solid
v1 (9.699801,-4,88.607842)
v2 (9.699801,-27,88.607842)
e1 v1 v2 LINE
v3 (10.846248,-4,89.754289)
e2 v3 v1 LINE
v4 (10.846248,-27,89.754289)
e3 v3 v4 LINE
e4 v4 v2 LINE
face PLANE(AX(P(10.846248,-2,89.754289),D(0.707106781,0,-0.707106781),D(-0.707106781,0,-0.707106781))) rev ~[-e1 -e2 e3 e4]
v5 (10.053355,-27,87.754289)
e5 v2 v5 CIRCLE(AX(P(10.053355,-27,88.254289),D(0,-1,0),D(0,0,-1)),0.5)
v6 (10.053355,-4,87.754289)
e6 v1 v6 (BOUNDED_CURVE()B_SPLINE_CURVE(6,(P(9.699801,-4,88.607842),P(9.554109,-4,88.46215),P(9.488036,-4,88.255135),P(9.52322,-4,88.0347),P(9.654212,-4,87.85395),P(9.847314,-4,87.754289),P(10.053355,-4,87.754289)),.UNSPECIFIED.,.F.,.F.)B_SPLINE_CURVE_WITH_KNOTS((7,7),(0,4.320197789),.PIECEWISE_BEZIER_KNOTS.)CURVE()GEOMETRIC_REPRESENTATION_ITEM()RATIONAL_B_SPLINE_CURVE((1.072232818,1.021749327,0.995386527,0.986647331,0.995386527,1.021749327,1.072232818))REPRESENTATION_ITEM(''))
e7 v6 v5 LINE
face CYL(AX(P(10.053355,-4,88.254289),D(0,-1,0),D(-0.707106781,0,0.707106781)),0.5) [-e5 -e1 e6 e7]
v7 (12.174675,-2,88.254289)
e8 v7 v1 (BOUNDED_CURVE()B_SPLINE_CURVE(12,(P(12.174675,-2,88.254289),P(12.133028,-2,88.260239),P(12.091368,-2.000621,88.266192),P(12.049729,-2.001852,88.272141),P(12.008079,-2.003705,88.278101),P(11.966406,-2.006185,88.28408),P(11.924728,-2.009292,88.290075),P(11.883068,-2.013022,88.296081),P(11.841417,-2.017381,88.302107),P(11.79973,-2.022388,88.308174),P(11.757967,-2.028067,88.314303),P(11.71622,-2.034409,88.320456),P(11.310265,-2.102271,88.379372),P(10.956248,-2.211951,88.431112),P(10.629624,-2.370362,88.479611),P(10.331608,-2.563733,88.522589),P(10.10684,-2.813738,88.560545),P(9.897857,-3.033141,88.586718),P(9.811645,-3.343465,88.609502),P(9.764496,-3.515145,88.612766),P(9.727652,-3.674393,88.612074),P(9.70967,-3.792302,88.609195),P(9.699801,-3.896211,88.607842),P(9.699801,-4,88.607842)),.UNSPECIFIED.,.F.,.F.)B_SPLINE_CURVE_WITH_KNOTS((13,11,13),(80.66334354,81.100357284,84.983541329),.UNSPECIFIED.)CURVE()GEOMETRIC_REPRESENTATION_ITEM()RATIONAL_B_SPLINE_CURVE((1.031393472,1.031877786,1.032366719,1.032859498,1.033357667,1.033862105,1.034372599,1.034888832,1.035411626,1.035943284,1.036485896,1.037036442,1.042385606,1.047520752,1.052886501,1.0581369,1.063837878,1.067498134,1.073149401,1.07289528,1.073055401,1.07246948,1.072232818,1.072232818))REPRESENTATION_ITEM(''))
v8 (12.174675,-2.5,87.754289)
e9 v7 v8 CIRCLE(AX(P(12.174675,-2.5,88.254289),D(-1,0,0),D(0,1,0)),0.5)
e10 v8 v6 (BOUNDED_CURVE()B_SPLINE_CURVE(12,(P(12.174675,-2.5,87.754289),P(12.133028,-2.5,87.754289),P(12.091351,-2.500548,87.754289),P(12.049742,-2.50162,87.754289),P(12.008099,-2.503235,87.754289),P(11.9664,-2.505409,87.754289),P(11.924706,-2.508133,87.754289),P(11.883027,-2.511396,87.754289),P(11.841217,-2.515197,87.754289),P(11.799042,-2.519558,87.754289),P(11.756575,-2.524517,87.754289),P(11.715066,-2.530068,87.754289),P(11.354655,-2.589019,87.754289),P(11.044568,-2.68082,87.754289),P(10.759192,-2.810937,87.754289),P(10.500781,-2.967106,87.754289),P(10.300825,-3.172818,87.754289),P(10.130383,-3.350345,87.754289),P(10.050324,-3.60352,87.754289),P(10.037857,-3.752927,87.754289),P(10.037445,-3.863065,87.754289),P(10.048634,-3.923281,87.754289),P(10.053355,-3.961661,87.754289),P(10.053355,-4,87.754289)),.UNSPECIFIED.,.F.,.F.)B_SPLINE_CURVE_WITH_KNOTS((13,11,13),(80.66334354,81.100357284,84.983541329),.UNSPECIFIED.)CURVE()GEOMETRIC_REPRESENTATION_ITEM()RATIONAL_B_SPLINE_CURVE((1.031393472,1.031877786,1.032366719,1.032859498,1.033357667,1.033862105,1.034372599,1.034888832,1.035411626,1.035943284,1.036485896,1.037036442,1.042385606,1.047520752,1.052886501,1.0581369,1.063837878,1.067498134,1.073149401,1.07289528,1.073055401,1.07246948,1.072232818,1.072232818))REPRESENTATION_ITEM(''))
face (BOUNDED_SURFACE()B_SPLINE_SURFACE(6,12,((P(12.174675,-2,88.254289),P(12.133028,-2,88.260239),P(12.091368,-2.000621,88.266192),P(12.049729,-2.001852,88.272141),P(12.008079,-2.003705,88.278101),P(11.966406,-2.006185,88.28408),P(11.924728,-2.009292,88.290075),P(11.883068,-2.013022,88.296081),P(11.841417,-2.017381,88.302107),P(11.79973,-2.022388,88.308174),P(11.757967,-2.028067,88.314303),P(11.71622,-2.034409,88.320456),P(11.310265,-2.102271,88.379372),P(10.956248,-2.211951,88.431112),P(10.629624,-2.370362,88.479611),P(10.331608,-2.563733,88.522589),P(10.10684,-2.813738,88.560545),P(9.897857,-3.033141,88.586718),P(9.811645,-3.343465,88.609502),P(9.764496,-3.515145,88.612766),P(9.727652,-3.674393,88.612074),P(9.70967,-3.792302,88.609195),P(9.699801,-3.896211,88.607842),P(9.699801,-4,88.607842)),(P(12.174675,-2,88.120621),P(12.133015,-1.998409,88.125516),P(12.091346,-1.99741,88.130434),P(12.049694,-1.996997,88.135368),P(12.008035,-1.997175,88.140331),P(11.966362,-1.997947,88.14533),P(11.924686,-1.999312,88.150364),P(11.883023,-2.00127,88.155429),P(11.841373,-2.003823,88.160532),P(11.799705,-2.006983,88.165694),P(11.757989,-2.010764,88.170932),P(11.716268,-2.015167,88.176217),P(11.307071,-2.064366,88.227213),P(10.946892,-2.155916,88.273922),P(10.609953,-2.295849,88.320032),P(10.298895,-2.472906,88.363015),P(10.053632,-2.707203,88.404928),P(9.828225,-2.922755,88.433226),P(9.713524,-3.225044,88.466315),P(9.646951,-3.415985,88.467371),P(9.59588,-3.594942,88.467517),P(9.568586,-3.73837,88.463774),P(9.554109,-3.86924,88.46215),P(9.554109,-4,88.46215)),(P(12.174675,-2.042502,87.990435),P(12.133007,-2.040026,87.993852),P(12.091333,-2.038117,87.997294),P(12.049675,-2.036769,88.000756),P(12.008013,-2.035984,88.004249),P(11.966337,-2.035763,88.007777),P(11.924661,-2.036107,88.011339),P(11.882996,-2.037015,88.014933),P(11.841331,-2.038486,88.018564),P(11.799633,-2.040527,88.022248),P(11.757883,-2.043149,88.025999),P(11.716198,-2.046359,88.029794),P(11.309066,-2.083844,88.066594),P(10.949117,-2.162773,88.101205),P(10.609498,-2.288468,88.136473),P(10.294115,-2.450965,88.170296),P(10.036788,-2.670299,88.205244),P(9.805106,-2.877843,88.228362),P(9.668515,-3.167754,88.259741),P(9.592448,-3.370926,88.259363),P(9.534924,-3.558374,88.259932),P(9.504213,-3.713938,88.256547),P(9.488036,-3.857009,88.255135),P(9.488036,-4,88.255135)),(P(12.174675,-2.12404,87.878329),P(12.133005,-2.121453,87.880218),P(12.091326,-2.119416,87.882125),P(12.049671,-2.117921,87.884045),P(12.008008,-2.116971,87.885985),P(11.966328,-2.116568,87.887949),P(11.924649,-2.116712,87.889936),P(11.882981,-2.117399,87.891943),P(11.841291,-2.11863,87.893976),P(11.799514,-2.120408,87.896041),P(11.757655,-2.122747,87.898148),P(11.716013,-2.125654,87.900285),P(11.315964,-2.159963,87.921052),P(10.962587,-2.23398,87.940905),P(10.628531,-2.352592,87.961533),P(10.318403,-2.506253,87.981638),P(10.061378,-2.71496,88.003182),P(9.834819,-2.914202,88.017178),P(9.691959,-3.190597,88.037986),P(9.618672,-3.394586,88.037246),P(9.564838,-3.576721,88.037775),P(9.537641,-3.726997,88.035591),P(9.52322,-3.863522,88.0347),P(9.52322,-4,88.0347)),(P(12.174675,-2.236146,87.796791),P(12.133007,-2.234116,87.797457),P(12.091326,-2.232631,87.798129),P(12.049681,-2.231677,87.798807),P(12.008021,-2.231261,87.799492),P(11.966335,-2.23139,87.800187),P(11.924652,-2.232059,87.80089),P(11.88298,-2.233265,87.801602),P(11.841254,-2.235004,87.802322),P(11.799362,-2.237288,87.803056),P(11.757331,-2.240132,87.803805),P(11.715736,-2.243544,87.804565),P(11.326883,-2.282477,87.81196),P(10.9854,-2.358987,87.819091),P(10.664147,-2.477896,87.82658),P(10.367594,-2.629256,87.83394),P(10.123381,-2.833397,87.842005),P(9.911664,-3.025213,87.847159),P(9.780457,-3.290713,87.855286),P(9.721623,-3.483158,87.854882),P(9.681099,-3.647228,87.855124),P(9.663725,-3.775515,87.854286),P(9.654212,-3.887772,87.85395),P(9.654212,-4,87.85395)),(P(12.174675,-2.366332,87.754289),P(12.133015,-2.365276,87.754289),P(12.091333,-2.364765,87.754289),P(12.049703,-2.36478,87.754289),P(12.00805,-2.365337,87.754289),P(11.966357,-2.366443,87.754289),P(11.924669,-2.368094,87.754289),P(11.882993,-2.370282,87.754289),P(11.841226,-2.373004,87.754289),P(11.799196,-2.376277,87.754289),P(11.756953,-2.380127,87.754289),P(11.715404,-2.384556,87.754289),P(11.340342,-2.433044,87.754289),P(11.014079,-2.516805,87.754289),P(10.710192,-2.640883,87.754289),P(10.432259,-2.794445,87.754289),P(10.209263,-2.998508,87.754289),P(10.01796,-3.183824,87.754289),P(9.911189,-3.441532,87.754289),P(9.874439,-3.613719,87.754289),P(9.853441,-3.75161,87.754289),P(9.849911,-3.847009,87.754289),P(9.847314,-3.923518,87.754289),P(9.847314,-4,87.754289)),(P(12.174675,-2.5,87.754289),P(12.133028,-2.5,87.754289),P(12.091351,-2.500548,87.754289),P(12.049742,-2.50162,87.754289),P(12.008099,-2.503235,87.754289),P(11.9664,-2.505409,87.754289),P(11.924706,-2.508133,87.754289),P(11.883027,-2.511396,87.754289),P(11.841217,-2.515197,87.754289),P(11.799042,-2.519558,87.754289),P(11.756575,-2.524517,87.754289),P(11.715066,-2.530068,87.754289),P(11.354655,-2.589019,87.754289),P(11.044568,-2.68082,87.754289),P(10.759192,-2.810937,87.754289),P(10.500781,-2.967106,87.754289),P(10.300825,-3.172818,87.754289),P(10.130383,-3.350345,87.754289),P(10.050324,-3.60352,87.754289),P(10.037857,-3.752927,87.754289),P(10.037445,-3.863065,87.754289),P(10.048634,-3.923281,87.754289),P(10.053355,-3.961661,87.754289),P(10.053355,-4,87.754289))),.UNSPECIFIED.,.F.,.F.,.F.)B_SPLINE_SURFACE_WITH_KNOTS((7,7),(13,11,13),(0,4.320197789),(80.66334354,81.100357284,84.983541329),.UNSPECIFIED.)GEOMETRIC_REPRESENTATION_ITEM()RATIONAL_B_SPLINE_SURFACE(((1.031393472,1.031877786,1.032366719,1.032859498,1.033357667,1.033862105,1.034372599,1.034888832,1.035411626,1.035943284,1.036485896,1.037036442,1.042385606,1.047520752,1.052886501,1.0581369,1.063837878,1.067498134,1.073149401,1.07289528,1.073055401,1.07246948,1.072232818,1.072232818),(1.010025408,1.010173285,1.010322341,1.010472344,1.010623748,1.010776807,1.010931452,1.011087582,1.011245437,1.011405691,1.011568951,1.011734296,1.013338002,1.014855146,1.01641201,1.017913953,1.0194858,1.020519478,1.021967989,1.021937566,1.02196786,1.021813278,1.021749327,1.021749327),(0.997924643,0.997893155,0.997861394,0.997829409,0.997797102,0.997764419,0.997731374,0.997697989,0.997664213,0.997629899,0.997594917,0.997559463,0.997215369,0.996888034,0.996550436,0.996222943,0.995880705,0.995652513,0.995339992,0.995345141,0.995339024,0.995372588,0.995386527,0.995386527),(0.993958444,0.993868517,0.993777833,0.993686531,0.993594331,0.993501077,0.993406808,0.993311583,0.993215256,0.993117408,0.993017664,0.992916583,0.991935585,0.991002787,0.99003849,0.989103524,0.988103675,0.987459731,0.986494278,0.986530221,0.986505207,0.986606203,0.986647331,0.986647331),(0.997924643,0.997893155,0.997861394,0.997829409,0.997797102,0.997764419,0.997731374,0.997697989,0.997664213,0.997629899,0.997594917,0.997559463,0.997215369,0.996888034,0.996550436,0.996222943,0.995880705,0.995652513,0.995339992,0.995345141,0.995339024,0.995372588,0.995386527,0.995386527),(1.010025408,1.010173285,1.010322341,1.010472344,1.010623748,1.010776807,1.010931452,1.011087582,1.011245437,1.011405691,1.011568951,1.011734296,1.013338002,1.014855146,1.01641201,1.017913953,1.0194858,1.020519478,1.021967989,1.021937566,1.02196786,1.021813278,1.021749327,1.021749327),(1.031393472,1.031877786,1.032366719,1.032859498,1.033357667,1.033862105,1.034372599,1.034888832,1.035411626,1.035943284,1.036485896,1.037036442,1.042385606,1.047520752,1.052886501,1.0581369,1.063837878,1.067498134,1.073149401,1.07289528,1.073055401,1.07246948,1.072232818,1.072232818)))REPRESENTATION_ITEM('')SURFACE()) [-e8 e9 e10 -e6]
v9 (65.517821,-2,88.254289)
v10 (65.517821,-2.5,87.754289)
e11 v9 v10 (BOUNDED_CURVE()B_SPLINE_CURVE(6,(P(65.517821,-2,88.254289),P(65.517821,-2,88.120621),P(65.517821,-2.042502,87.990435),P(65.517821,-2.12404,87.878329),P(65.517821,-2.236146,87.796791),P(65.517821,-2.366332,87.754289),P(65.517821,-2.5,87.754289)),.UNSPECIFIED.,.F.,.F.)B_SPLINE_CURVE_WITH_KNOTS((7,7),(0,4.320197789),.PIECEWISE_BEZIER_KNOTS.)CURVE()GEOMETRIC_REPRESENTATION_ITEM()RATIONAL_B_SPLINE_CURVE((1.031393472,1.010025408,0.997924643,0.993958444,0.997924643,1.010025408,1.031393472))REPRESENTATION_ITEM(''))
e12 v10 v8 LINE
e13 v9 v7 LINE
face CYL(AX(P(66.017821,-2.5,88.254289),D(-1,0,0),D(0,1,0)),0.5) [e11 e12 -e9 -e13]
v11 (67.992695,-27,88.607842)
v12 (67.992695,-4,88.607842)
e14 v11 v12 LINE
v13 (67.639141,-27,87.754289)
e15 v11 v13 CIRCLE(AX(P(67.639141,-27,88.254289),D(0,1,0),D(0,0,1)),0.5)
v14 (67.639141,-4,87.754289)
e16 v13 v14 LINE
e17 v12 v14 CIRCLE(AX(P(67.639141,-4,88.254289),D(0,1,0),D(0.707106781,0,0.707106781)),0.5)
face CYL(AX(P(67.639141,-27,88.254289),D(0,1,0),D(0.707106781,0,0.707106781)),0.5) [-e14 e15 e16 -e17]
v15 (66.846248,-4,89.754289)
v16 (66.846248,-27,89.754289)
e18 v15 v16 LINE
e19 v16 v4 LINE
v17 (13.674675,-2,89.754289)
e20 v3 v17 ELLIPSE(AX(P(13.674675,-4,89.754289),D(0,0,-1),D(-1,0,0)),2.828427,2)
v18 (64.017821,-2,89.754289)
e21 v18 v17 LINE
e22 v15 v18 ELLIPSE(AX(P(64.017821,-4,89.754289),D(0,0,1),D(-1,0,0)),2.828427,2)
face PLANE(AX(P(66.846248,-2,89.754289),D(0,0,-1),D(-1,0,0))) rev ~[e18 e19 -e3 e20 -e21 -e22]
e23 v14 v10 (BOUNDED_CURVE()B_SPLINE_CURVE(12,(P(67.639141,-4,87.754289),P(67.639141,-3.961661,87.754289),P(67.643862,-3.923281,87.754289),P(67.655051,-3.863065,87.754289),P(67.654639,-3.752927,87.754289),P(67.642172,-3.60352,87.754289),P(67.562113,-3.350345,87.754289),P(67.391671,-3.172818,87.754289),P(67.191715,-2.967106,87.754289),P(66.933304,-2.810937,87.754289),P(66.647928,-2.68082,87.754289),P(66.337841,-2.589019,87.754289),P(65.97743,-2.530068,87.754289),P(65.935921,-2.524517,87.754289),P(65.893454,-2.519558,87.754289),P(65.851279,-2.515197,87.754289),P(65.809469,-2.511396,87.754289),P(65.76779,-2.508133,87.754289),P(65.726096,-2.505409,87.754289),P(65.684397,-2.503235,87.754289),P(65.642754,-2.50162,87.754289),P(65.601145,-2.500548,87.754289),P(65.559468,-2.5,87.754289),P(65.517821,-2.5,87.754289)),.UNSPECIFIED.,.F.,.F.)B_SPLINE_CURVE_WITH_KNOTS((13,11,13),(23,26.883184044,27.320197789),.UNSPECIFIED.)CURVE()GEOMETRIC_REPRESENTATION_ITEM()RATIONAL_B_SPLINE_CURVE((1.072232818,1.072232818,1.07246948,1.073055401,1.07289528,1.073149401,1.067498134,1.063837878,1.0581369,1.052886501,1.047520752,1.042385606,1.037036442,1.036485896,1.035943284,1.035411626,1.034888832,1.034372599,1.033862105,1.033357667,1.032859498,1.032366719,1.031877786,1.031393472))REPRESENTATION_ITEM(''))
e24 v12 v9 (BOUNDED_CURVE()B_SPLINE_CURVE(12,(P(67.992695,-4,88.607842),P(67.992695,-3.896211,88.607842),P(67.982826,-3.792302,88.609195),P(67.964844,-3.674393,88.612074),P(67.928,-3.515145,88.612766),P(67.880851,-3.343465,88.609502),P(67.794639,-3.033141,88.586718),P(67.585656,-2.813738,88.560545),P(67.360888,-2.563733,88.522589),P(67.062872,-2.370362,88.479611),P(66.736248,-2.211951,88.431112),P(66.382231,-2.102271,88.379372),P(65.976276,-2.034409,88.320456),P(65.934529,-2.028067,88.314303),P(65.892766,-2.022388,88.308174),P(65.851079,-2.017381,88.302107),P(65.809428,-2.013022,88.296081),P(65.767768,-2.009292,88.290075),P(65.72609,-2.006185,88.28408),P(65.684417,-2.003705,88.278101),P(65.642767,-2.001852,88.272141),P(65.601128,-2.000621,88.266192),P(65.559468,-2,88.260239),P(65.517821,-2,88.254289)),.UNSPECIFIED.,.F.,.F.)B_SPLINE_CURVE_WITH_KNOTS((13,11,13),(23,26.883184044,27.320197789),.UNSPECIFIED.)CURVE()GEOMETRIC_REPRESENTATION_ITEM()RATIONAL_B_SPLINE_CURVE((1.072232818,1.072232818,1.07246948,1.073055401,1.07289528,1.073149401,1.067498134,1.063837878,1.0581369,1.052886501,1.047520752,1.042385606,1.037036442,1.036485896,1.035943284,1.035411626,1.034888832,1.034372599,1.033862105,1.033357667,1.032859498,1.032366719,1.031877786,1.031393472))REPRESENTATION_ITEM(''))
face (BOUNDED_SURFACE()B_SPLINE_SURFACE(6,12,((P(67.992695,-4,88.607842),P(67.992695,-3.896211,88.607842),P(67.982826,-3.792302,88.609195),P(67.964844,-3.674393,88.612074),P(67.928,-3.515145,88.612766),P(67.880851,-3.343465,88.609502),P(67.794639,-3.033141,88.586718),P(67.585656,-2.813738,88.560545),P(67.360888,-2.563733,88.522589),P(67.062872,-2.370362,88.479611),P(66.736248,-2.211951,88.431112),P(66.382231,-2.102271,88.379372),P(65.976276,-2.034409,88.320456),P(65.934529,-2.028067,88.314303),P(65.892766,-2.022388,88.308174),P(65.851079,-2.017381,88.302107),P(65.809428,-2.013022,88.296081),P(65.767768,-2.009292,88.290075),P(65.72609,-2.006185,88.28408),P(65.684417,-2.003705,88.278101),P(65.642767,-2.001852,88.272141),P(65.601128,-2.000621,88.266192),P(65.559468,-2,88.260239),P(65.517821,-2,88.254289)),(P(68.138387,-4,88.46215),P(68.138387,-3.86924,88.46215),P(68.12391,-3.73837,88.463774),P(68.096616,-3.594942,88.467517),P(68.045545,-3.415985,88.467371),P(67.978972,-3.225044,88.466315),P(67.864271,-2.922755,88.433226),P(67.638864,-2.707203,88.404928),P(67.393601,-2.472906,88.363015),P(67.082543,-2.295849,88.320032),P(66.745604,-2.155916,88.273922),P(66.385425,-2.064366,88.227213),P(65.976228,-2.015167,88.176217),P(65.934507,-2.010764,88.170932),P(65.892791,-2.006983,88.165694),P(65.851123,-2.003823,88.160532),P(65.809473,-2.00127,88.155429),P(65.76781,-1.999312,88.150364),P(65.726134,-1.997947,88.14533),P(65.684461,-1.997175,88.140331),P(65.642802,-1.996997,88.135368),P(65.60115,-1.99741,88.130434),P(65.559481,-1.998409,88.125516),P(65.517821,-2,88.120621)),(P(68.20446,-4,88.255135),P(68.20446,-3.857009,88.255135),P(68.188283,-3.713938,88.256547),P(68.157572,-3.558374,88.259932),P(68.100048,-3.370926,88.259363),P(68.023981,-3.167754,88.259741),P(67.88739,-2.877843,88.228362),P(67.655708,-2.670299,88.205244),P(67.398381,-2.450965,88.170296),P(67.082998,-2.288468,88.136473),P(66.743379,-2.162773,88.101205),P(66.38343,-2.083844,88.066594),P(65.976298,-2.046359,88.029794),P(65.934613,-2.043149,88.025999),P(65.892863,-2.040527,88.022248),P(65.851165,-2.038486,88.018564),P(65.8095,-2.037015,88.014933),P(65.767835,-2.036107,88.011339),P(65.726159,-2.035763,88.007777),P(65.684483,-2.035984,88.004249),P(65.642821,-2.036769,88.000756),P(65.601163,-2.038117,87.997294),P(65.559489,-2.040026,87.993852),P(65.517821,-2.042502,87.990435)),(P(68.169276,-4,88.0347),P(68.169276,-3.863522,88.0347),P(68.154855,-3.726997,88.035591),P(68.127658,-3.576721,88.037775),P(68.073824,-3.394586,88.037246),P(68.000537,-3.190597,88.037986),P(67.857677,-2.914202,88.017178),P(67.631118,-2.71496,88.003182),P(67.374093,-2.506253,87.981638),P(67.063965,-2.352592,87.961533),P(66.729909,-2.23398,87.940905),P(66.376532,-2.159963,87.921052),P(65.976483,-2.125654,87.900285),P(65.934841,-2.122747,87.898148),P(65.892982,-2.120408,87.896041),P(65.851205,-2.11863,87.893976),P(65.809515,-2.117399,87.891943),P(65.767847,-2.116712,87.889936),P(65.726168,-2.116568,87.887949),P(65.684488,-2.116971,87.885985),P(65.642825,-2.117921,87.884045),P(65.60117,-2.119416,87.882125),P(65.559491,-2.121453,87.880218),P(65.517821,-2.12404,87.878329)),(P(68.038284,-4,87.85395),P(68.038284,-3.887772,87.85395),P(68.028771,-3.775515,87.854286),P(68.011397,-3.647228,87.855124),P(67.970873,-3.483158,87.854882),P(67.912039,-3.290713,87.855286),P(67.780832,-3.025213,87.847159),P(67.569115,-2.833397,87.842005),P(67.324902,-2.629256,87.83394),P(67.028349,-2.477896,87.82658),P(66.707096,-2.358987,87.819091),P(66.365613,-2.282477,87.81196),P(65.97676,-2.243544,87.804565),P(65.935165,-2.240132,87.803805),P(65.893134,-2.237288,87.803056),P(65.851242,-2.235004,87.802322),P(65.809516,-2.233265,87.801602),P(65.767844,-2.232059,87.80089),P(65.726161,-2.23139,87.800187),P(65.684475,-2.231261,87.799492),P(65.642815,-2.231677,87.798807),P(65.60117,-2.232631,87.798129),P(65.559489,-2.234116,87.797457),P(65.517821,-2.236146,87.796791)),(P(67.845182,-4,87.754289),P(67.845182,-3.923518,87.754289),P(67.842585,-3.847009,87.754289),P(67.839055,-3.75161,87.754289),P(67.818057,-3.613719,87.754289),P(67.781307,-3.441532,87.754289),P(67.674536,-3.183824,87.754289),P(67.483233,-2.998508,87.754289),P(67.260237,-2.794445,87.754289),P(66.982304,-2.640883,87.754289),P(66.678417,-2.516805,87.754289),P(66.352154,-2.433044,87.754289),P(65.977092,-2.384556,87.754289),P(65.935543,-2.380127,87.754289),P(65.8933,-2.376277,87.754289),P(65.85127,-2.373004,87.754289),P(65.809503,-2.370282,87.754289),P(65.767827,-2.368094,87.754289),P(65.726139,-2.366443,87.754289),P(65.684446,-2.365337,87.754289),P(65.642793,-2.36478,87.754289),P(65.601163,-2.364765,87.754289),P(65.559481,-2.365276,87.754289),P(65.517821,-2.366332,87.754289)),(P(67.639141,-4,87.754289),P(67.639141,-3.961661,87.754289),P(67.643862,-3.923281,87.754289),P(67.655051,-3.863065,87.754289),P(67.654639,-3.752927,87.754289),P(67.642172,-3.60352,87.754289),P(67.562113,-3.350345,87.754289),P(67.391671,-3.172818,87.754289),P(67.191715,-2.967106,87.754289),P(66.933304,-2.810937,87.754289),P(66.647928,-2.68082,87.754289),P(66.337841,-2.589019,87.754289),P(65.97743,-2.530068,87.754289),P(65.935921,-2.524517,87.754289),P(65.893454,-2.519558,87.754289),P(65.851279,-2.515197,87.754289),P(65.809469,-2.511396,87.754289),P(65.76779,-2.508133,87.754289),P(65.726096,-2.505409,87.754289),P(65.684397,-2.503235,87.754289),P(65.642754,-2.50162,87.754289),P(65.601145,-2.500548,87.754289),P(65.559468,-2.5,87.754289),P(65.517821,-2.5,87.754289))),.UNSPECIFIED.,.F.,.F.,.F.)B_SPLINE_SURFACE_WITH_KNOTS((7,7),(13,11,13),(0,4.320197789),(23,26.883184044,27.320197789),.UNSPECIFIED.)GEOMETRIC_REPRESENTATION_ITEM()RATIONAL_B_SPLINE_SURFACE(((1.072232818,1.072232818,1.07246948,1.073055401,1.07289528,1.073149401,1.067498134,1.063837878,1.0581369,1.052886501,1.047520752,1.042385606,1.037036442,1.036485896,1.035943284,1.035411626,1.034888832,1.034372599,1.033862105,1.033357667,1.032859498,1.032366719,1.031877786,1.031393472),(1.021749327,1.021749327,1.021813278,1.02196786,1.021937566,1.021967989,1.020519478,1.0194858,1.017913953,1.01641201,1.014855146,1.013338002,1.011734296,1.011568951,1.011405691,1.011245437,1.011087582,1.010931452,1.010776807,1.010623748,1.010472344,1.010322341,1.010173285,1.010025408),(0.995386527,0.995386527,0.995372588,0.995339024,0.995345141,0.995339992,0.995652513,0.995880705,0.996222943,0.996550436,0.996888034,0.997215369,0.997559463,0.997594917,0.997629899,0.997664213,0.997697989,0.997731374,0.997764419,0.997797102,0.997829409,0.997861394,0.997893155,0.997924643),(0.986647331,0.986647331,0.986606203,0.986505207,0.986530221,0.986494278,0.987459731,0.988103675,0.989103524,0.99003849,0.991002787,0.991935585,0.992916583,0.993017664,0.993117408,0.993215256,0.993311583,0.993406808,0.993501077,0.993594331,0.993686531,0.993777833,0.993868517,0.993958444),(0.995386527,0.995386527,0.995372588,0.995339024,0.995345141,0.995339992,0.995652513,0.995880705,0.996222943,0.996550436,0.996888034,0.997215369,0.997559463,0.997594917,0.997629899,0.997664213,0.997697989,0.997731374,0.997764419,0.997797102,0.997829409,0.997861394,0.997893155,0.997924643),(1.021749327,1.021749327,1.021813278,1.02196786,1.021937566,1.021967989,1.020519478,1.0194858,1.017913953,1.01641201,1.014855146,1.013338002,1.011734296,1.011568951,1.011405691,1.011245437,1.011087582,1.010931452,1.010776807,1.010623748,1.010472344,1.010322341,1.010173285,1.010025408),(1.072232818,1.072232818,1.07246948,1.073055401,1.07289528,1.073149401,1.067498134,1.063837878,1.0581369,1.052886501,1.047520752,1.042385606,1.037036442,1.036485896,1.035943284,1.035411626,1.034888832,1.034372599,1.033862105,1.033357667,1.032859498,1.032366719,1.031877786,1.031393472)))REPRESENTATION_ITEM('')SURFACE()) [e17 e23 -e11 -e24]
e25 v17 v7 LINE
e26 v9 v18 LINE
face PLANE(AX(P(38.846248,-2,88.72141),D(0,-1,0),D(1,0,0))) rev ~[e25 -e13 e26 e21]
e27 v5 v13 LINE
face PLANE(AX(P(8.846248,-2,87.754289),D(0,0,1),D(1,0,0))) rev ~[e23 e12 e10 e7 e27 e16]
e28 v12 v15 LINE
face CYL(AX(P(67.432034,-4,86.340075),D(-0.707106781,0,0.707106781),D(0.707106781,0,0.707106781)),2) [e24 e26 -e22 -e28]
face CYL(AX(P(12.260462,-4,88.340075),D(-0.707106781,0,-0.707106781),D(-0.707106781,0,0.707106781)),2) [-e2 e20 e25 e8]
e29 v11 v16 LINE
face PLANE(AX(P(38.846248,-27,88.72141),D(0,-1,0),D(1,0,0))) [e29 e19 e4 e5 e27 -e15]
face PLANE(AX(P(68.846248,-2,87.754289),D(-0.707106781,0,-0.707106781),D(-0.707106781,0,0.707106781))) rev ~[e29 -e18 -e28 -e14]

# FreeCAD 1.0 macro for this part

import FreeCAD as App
import Part
import Sketcher

V = App.Vector


def edges_at(feature, points):
    """Names of the edges that pass closest to the given points."""
    edges = feature.Shape.Edges
    near = lambda p: min(range(len(edges)), key=lambda i: edges[i].distToShape(Part.Vertex(*p))[0])
    return sorted({f"Edge{near(p) + 1}" for p in points})


def add_polygon(sketch, points):
    """Adds a closed chain of lines whose ends are joined by coincident constraints."""
    first, n = sketch.GeometryCount, len(points)
    for a, b in zip(points, points[1:] + points[:1]):
        sketch.addGeometry(Part.LineSegment(App.Vector(*a, 0), App.Vector(*b, 0)), False)
    for i in range(n):
        sketch.addConstraint(Sketcher.Constraint("Coincident", first + i, 2, first + (i + 1) % n, 1))

doc = App.newDocument("Part")
body = doc.addObject("PartDesign::Body", "Body")

# Sketch on XZ plane
sketch1 = body.newObject("Sketcher::SketchObject", "Sketch")
sketch1.AttachmentSupport = (doc.getObject("XZ_Plane"), [""])
sketch1.MapMode = "FlatFace"
add_polygon(sketch1, [(10.8, 101.5), (8.8, 99.5), (68.8, 99.5), (66.8, 101.5)])  # lines 0-3
sketch1.addConstraint([
    Sketcher.Constraint("Horizontal", 1),
    Sketcher.Constraint("Horizontal", 3),
    Sketcher.Constraint("Perpendicular", 0, 2),
    Sketcher.Constraint("Equal", 0, 2),
    Sketcher.Constraint("DistanceX", 1, 1, 1, 2, 60.0),
    Sketcher.Constraint("DistanceX", 3, 2, 3, 1, 56.0),
    Sketcher.Constraint("DistanceY", -1, 1, 0, 2, 99.514289),
    Sketcher.Constraint("DistanceX", -1, 1, 1, 2, 68.846248),
])
pad1 = body.newObject("PartDesign::Pad", "Pad")
pad1.Profile = sketch1
pad1.Length = 25
body2 = doc.addObject("PartDesign::Body", "Body001")
doc.recompute()

body.Placement = App.Placement(V(0.5, -6.5, -11.5), App.Rotation(V(0, 0, 1), 0))
boolean = body2.newObject("PartDesign::Boolean", "Boolean")
boolean.Type = "Fuse"
boolean.addObjects([body])
doc.recompute()

fillet = body2.newObject("PartDesign::Fillet", "Fillet")
fillet.Base = (boolean, edges_at(boolean, [(10.346, -6.5, 89.014), (68.346, -6.5, 89.014)]))
fillet.Radius = 2
doc.recompute()

fillet2 = body2.newObject("PartDesign::Fillet", "Fillet001")
fillet2.Base = (fillet, edges_at(fillet, [(9.346, -20, 88.014), (69.346, -20, 88.014)]))
fillet2.Radius = 0.5
body3 = doc.addObject("PartDesign::Body", "Body002")
doc.recompute()

body2.Placement = App.Placement(V(-0.5, 4.5, -0.26), App.Rotation(V(0, 0, 1), 0))
boolean2 = body3.newObject("PartDesign::Boolean", "Boolean001")
boolean2.Type = "Fuse"
boolean2.addObjects([body2])

doc.recompute()
